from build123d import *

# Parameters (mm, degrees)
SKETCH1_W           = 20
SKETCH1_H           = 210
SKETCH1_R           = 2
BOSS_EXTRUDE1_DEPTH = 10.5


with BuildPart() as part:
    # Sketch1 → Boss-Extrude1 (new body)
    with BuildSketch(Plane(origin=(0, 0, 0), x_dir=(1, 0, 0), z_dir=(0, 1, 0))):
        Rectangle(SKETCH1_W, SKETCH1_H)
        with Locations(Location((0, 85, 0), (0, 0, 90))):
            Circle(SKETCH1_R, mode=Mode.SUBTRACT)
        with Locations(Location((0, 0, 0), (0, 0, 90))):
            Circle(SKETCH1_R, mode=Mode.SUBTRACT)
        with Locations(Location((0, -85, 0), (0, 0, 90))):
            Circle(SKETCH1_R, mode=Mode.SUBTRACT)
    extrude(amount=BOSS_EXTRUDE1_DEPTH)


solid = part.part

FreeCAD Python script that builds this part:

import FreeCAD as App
import Part
import Sketcher
Q = App.Units.Quantity


def add_polygon(sketch, points):
    """Adds a closed chain of lines whose ends are joined by coincident constraints."""
    first, n = sketch.GeometryCount, len(points)
    for a, b in zip(points, points[1:] + points[:1]):
        sketch.addGeometry(Part.LineSegment(App.Vector(*a, 0), App.Vector(*b, 0)), False)
    for i in range(n):
        sketch.addConstraint(Sketcher.Constraint("Coincident", first + i, 2, first + (i + 1) % n, 1))

doc = App.newDocument("Part")
body = doc.addObject("PartDesign::Body", "Body")

# Sketch on XZ plane
sketch1 = doc.addObject("Sketcher::SketchObject", "Sketch")
body.addObject(sketch1)
sketch1.AttachmentSupport = (doc.XZ_Plane, [""])
sketch1.MapMode = "FlatFace"
add_polygon(sketch1, [(-10, -105), (-10, 105), (10, 105), (10, -105)])  # lines 0-3
sketch1.addGeometry(Part.Circle(App.Vector(0, 85, 0), App.Vector(0, 0, 1), 2), False)  # 4
sketch1.addGeometry(Part.Circle(App.Vector(0, 0, 0), App.Vector(0, 0, 1), 2), False)  # 5
sketch1.addGeometry(Part.Circle(App.Vector(0, -85, 0), App.Vector(0, 0, 1), 2), False)  # 6
sketch1.addConstraint([
    Sketcher.Constraint("Vertical", 0),
    Sketcher.Constraint("Horizontal", 1),
    Sketcher.Constraint("Vertical", 2),
    Sketcher.Constraint("Horizontal", 3),
    Sketcher.Constraint("Coincident", 5, 3, -1, 1),
    Sketcher.Constraint("Equal", 4, 5),
    Sketcher.Constraint("Equal", 5, 6),
    Sketcher.Constraint("Symmetric", 4, 3, 6, 3, -1, 1),
    Sketcher.Constraint("Symmetric", 0, 2, 2, 2, -1, 1),
    Sketcher.Constraint("PointOnObject", 4, 3, -2),
    Sketcher.Constraint("Diameter", 4, Q("4 mm")),
    Sketcher.Constraint("DistanceX", 1, 1, 1, 2, Q("20 mm")),
    Sketcher.Constraint("DistanceY", 0, 1, 0, 2, Q("210 mm")),
    Sketcher.Constraint("DistanceY", -1, 1, 4, 3, Q("85 mm")),
])
pad1 = doc.addObject("PartDesign::Pad", "Pad")
body.addObject(pad1)
pad1.Profile = sketch1
pad1.Length = 10.5
pad1.Reversed = True

doc.recompute()
